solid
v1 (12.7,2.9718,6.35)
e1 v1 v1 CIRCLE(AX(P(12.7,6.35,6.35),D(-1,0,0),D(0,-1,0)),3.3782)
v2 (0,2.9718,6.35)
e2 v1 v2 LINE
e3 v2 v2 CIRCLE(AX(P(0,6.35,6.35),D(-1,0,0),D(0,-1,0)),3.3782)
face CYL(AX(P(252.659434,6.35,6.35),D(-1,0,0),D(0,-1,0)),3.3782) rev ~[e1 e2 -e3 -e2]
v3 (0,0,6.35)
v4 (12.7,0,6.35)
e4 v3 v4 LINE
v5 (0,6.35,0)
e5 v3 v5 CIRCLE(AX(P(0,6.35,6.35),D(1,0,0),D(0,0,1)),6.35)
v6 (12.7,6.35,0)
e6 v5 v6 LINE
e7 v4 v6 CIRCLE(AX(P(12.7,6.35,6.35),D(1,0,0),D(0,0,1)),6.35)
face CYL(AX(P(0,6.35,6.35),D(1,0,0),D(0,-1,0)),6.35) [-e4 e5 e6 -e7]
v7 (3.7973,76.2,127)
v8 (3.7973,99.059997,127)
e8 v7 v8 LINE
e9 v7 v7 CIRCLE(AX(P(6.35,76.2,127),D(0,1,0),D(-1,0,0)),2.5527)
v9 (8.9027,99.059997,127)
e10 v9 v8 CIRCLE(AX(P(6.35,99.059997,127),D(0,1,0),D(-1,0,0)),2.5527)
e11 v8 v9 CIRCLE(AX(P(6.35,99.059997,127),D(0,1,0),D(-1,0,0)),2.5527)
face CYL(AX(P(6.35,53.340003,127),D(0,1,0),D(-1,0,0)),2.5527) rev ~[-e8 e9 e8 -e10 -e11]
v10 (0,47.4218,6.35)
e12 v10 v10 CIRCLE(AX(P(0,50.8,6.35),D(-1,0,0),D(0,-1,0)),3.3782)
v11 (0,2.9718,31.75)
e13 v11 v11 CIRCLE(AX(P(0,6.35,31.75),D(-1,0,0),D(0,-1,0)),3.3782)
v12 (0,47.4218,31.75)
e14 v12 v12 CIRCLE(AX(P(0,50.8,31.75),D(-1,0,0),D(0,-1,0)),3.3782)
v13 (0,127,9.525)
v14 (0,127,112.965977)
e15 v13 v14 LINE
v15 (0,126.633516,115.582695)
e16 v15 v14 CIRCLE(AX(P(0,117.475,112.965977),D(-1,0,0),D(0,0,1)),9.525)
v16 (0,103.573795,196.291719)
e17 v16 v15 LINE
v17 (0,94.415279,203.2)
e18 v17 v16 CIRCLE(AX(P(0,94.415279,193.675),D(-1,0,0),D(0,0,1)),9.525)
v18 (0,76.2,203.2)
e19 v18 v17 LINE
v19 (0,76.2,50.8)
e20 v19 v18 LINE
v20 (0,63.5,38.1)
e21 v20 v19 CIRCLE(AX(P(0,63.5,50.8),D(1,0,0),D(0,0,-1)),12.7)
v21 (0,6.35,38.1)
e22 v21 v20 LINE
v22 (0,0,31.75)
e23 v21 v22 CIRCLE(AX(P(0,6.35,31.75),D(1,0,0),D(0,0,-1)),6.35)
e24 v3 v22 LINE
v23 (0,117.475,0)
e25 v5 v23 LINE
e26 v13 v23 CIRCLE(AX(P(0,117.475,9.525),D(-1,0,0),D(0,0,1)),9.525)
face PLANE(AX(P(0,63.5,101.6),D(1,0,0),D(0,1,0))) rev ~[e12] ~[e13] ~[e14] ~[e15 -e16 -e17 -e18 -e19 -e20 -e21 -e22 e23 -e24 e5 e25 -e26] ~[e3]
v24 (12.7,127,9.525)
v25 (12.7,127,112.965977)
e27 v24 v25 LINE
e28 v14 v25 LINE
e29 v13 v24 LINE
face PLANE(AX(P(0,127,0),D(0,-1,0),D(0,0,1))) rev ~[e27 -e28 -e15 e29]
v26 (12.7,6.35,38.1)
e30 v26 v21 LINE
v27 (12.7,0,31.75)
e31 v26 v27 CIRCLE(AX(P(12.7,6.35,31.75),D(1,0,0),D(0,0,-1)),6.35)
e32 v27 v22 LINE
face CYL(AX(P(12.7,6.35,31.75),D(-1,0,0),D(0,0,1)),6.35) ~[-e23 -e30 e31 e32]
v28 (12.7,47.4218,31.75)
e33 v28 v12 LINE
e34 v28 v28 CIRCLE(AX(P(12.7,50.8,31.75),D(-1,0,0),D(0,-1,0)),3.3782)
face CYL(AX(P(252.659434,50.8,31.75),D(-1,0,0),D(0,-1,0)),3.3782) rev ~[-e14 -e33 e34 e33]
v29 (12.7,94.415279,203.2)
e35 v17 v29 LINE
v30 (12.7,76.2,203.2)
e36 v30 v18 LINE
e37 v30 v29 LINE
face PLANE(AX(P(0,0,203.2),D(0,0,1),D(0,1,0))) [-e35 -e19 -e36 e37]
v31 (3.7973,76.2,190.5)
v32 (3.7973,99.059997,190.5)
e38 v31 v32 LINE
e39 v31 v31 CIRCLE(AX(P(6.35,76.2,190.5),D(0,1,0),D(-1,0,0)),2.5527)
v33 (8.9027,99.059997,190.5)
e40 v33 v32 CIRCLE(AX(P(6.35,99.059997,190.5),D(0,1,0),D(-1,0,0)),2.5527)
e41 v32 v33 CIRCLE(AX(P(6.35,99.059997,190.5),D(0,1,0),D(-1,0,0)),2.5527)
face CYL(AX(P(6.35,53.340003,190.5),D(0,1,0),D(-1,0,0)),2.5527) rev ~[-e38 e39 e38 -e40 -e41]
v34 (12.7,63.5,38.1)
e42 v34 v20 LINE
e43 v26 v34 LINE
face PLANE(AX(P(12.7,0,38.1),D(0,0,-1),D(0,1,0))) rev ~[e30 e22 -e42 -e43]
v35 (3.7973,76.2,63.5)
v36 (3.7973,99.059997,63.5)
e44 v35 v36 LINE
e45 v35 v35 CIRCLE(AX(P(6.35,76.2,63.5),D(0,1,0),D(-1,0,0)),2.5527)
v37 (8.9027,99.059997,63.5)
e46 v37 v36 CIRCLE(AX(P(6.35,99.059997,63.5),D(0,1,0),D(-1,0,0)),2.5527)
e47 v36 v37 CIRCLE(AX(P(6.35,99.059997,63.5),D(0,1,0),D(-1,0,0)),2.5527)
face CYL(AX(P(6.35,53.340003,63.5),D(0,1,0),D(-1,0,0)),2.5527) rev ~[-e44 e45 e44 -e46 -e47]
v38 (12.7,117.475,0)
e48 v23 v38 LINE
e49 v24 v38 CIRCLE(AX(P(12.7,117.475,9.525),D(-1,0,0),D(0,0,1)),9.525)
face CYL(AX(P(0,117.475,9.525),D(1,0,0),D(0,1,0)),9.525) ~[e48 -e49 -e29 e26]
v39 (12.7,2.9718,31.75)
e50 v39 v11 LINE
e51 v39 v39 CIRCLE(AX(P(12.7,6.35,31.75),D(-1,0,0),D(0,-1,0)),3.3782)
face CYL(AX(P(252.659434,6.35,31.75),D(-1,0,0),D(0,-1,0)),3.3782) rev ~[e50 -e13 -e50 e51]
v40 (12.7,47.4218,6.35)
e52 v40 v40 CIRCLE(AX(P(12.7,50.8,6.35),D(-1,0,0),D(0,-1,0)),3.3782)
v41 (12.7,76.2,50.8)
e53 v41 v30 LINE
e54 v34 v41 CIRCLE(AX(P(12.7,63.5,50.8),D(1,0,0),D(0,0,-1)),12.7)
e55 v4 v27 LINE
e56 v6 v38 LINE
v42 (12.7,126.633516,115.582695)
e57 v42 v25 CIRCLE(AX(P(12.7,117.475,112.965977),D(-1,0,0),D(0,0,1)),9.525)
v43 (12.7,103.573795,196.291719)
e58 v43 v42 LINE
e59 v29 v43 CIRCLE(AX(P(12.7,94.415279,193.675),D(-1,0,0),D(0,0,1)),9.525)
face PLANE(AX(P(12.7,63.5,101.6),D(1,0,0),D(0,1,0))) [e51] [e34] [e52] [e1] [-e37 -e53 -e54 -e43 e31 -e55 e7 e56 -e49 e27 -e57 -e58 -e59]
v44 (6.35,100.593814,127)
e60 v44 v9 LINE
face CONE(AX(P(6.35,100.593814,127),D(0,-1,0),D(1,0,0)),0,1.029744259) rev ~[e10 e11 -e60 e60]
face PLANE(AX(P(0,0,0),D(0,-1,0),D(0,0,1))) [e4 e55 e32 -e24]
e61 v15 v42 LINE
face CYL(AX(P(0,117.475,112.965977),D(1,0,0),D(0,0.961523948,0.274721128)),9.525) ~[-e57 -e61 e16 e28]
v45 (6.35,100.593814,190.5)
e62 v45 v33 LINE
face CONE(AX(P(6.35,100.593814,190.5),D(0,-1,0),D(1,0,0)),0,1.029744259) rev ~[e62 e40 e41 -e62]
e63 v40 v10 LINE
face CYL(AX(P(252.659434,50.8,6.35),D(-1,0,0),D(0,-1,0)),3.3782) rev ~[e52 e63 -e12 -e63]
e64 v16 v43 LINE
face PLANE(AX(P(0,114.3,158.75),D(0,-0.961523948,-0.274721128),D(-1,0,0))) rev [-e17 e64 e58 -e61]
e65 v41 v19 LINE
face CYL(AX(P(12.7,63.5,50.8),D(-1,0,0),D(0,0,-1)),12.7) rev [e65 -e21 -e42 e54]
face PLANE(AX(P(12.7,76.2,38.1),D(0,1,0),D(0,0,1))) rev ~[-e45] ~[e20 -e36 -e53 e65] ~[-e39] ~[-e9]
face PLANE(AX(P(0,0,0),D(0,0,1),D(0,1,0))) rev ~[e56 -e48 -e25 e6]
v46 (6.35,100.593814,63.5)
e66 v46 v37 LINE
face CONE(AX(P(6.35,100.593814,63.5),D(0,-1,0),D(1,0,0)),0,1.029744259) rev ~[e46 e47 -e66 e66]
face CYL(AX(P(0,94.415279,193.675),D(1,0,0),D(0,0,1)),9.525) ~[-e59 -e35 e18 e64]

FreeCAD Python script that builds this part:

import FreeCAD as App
import Part
import Sketcher
Q = App.Units.Quantity


def edges_at(feature, points):
    """Names of the edges that pass closest to the given points."""
    edges = feature.Shape.Edges
    near = lambda p: min(range(len(edges)), key=lambda i: edges[i].distToShape(Part.Vertex(*p))[0])
    return sorted({f"Edge{near(p) + 1}" for p in points})

doc = App.newDocument("Part")
params = doc.addObject("Spreadsheet::Sheet", "Params")
for row, (alias, value) in enumerate([
    ("sketch1_width", "5 in"),
    ("sketch1_height", "8 in"),
    ("pad1_length", "0.5 in"),
    ("sketch2_diameter", "0.266 in"),
    ("hole_diameter", "0.266 in"),
    ("sketch3_width", "3 in"),
    ("sketch3_height", "6.5 in"),
    ("fillet_radius", "0.5 in"),
    ("sketch4_diameter", "0.201 in"),
    ("hole2_diameter", "0.201 in"),
    ("hole2_depth", "0.8999999 in"),
    ("chamfer_size", "1 in"),
    ("chamfer_size2", "3.5 in"),
    ("fillet2_radius", "0.375 in"),
    ("fillet3_radius", "0.25 in"),
], start=1):
    params.set(f"A{row}", alias)
    params.set(f"B{row}", "=" + value)
    params.setAlias(f"B{row}", alias)

body = doc.addObject("PartDesign::Body", "Body")

# Sketch on YZ plane
sketch1 = body.newObject("Sketcher::SketchObject", "Sketch")
sketch1.AttachmentSupport = (doc.getObject("YZ_Plane"), [""])
sketch1.MapMode = "FlatFace"
sketch1.addGeometry([
    Part.LineSegment(App.Vector(0, 203, 0), App.Vector(0, 0, 0)),
    Part.LineSegment(App.Vector(0, 0, 0), App.Vector(127, 0, 0)),
    Part.LineSegment(App.Vector(127, 0, 0), App.Vector(127, 203, 0)),
    Part.LineSegment(App.Vector(127, 203, 0), App.Vector(0, 203, 0)),
], False)
sketch1.addConstraint([
    Sketcher.Constraint("Coincident", 0, 2, 1, 1),
    Sketcher.Constraint("Coincident", 1, 2, 2, 1),
    Sketcher.Constraint("Coincident", 2, 2, 3, 1),
    Sketcher.Constraint("Coincident", 3, 2, 0, 1),
    Sketcher.Constraint("Vertical", 0),
    Sketcher.Constraint("Horizontal", 1),
    Sketcher.Constraint("Vertical", 2),
    Sketcher.Constraint("Horizontal", 3),
    Sketcher.Constraint("Coincident", 0, 2, -1, 1),
    Sketcher.Constraint("DistanceX", 1, 1, 1, 2, Q("5 in")),
    Sketcher.Constraint("DistanceY", 0, 2, 0, 1, Q("8 in")),
])
sketch1.setExpression("Constraints[9]", "Params.sketch1_width")
sketch1.setExpression("Constraints[10]", "Params.sketch1_height")
pad1 = body.newObject("PartDesign::Pad", "Pad")
pad1.Profile = sketch1
pad1.setExpression("Length", "Params.pad1_length")

# Sketch on YZ plane
sketch2 = body.newObject("Sketcher::SketchObject", "Sketch001")
sketch2.AttachmentSupport = (doc.getObject("YZ_Plane"), [""])
sketch2.MapMode = "FlatFace"
sketch2.AttachmentOffset = App.Placement(App.Vector(0, 0, 0.5 * 25.4), App.Rotation())
sketch2.addGeometry([
    Part.Circle(App.Vector(6.3, 31.8, 0), App.Vector(0, 0, 1), 3.4),
    Part.Circle(App.Vector(50.8, 31.8, 0), App.Vector(0, 0, 1), 3.4),
    Part.Circle(App.Vector(50.8, 6.3, 0), App.Vector(0, 0, 1), 3.4),
    Part.Circle(App.Vector(6.3, 6.3, 0), App.Vector(0, 0, 1), 3.4),
], False)
sketch2.addConstraint([
    Sketcher.Constraint("Equal", 0, 1),
    Sketcher.Constraint("Equal", 1, 2),
    Sketcher.Constraint("Equal", 2, 3),
    Sketcher.Constraint("Horizontal", 0, 3, 1, 3),
    Sketcher.Constraint("Horizontal", 2, 3, 3, 3),
    Sketcher.Constraint("Vertical", 1, 3, 2, 3),
    Sketcher.Constraint("Vertical", 0, 3, 3, 3),
    Sketcher.Constraint("Diameter", 0, Q("0.266 in")),
    Sketcher.Constraint("DistanceX", -1, 1, 1, 3, Q("2 in")),
    Sketcher.Constraint("DistanceY", 2, 3, 1, 3, Q("1 in")),
    Sketcher.Constraint("DistanceX", -1, 1, 0, 3, Q("0.25 in")),
    Sketcher.Constraint("DistanceY", -1, 1, 0, 3, Q("1.25 in")),
])
sketch2.setExpression("Constraints[7]", "Params.sketch2_diameter")
doc.recompute()
hole = body.newObject("PartDesign::Hole", "Hole")
hole.Profile = sketch2
hole.ThreadType = "None"
hole.setExpression("Diameter", "Params.hole_diameter")
hole.DepthType = "ThroughAll"

# Sketch on YZ plane
sketch3 = body.newObject("Sketcher::SketchObject", "Sketch002")
sketch3.AttachmentSupport = (doc.getObject("YZ_Plane"), [""])
sketch3.MapMode = "FlatFace"
sketch3.AttachmentOffset = App.Placement(App.Vector(0, 0, 0.5 * 25.4), App.Rotation())
sketch3.addGeometry([
    Part.LineSegment(App.Vector(0, 203, 0), App.Vector(0, 38, 0)),
    Part.LineSegment(App.Vector(0, 38, 0), App.Vector(76, 38, 0)),
    Part.LineSegment(App.Vector(76, 38, 0), App.Vector(76, 203, 0)),
    Part.LineSegment(App.Vector(76, 203, 0), App.Vector(0, 203, 0)),
], False)
sketch3.addConstraint([
    Sketcher.Constraint("Coincident", 0, 2, 1, 1),
    Sketcher.Constraint("Coincident", 1, 2, 2, 1),
    Sketcher.Constraint("Coincident", 2, 2, 3, 1),
    Sketcher.Constraint("Coincident", 3, 2, 0, 1),
    Sketcher.Constraint("Vertical", 0),
    Sketcher.Constraint("Horizontal", 1),
    Sketcher.Constraint("Vertical", 2),
    Sketcher.Constraint("Horizontal", 3),
    Sketcher.Constraint("PointOnObject", 0, 2, -2),
    Sketcher.Constraint("DistanceX", 1, 1, 1, 2, Q("3 in")),
    Sketcher.Constraint("DistanceY", 0, 2, 0, 1, Q("6.5 in")),
    Sketcher.Constraint("DistanceY", -1, 1, 2, 2, Q("8 in")),
])
sketch3.setExpression("Constraints[9]", "Params.sketch3_width")
sketch3.setExpression("Constraints[10]", "Params.sketch3_height")
pocket1 = body.newObject("PartDesign::Pocket", "Pocket")
pocket1.Profile = sketch3
pocket1.Type = "ThroughAll"
doc.recompute()

fillet = body.newObject("PartDesign::Fillet", "Fillet")
fillet.Base = (pocket1, edges_at(pocket1, [(6.35, 76.2, 38.1)]))
fillet.setExpression("Radius", "Params.fillet_radius")

# Sketch on XZ plane
sketch4 = body.newObject("Sketcher::SketchObject", "Sketch003")
sketch4.AttachmentSupport = (doc.getObject("XZ_Plane"), [""])
sketch4.MapMode = "FlatFace"
sketch4.AttachmentOffset = App.Placement(App.Vector(0, 0, -3 * 25.4), App.Rotation())
sketch4.addGeometry([
    Part.Circle(App.Vector(6.3, 190.5, 0), App.Vector(0, 0, 1), 2.6),
    Part.Circle(App.Vector(6.3, 127, 0), App.Vector(0, 0, 1), 2.6),
    Part.Circle(App.Vector(6.3, 63.5, 0), App.Vector(0, 0, 1), 2.6),
], False)
sketch4.addConstraint([
    Sketcher.Constraint("Equal", 0, 1),
    Sketcher.Constraint("Equal", 1, 2),
    Sketcher.Constraint("Vertical", 0, 3, 1, 3),
    Sketcher.Constraint("Vertical", 1, 3, 2, 3),
    Sketcher.Constraint("Diameter", 0, Q("0.201 in")),
    Sketcher.Constraint("DistanceY", -1, 1, 1, 3, Q("5 in")),
    Sketcher.Constraint("DistanceY", 2, 3, 0, 3, Q("5 in")),
    Sketcher.Constraint("DistanceY", -1, 1, 0, 3, Q("7.5 in")),
    Sketcher.Constraint("DistanceX", -1, 1, 0, 3, Q("0.25 in")),
])
sketch4.setExpression("Constraints[4]", "Params.sketch4_diameter")
doc.recompute()
hole2 = body.newObject("PartDesign::Hole", "Hole001")
hole2.Profile = sketch4
hole2.ThreadType = "None"
hole2.setExpression("Diameter", "Params.hole2_diameter")
hole2.DepthType = "Dimension"
hole2.setExpression("Depth", "Params.hole2_depth")
hole2.DrillPoint = "Angled"
hole2.DrillPointAngle = 118
doc.recompute()

chamfer = body.newObject("PartDesign::Chamfer", "Chamfer")
chamfer.Base = (hole2, edges_at(hole2, [(6.35, 127, 203.2)]))
chamfer.ChamferType = "Two distances"
chamfer.setExpression("Size", "Params.chamfer_size")
chamfer.setExpression("Size2", "Params.chamfer_size2")
doc.recompute()

fillet2 = body.newObject("PartDesign::Fillet", "Fillet001")
fillet2.Base = (chamfer, edges_at(chamfer, [(6.35, 127, 0), (6.35, 101.6, 203.2), (6.35, 127, 114.3)]))
fillet2.setExpression("Radius", "Params.fillet2_radius")
doc.recompute()

fillet3 = body.newObject("PartDesign::Fillet", "Fillet002")
fillet3.Base = (fillet2, edges_at(fillet2, [(6.35, 0, 38.1), (6.35, 0, 0)]))
fillet3.setExpression("Radius", "Params.fillet3_radius")

doc.recompute()
